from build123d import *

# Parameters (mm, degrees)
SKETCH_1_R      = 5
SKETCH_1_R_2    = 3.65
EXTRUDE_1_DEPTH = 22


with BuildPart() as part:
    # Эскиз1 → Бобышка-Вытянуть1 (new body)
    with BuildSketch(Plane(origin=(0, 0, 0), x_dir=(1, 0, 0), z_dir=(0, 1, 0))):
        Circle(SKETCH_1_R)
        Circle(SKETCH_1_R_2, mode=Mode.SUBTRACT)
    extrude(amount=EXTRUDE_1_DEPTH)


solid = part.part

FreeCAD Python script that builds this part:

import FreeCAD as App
import Part
import Sketcher

V = App.Vector

doc = App.newDocument("Part")
body = doc.addObject("PartDesign::Body", "Body")

# Sketch on XZ plane
sketch1 = doc.addObject("Sketcher::SketchObject", "Sketch")
body.addObject(sketch1)
sketch1.AttachmentSupport = (doc.XZ_Plane, [""])
sketch1.MapMode = "FlatFace"
sketch1.addGeometry([
    Part.Circle(V(0, 0, 0), V(0, 0, 1), 5),
    Part.Circle(V(0, 0, 0), V(0, 0, 1), 3.6),
], False)
sketch1.addConstraint([
    Sketcher.Constraint("Coincident", 0, 3, -1, 1),
    Sketcher.Constraint("Coincident", 1, 3, -1, 1),
    Sketcher.Constraint("Diameter", 0, 10.0),
    Sketcher.Constraint("Diameter", 1, 7.3),
])
pad1 = doc.addObject("PartDesign::Pad", "Pad")
body.addObject(pad1)
pad1.Profile = sketch1
pad1.Length = 22
pad1.Reversed = True

doc.recompute()
